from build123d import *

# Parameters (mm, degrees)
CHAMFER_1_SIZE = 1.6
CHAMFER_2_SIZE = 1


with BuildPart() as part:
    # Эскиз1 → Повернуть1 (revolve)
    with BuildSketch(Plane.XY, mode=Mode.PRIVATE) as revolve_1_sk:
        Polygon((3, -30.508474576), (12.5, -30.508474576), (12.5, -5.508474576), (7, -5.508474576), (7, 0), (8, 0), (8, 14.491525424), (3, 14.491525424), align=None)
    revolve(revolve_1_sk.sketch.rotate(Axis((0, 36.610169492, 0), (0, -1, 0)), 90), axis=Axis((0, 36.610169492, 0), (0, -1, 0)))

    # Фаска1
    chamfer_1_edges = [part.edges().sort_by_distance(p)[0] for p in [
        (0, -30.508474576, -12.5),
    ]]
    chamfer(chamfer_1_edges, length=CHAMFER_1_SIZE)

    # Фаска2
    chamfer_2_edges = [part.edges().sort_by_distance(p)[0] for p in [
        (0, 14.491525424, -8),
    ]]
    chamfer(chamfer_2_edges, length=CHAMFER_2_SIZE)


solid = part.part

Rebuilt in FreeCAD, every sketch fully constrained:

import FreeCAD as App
import Part
import Sketcher

V = App.Vector


def edges_at(feature, points):
    """Names of the edges that pass closest to the given points."""
    edges = feature.Shape.Edges
    near = lambda p: min(range(len(edges)), key=lambda i: edges[i].distToShape(Part.Vertex(*p))[0])
    return sorted({f"Edge{near(p) + 1}" for p in points})

doc = App.newDocument("Part")
params = doc.addObject("Spreadsheet::Sheet", "Params")
for row, (alias, value) in enumerate([
    ("sketch1_width", "1 mm"),
    ("sketch1_width2", "5 mm"),
    ("sketch1_height", "25 mm"),
    ("sketch1_height2", "45 mm"),
    ("sketch1_width3", "9.5 mm"),
    ("revolution_angle", "360 deg"),
    ("chamfer_size", "1.6 mm"),
    ("chamfer2_size", "1 mm"),
], start=1):
    params.set(f"A{row}", alias)
    params.set(f"B{row}", "=" + value)
    params.setAlias(f"B{row}", alias)

body = doc.addObject("PartDesign::Body", "Body")

# Sketch on XY plane
sketch1 = body.newObject("Sketcher::SketchObject", "Sketch")
sketch1.AttachmentSupport = (doc.getObject("XY_Plane"), [""])
sketch1.MapMode = "FlatFace"
sketch1.addGeometry([
    Part.LineSegment(V(3, -30.5, 0), V(12.5, -30.5, 0)),  # 0
    Part.LineSegment(V(12.5, -30.5, 0), V(12.5, -5.5, 0)),  # 1
    Part.LineSegment(V(12.5, -5.5, 0), V(7, -5.5, 0)),  # 2
    Part.LineSegment(V(7, -5.5, 0), V(7, 0, 0)),  # 3
    Part.LineSegment(V(7, 0, 0), V(8, 0, 0)),  # 4
    Part.LineSegment(V(8, 0, 0), V(8, 14.5, 0)),  # 5
    Part.LineSegment(V(8, 14.5, 0), V(3, 14.5, 0)),  # 6
    Part.LineSegment(V(3, 14.5, 0), V(3, -30.5, 0)),  # 7
], False)
sketch1.addConstraint([
    Sketcher.Constraint("Coincident", 0, 2, 1, 1),
    Sketcher.Constraint("Coincident", 1, 2, 2, 1),
    Sketcher.Constraint("Coincident", 2, 2, 3, 1),
    Sketcher.Constraint("Coincident", 3, 2, 4, 1),
    Sketcher.Constraint("Coincident", 4, 2, 5, 1),
    Sketcher.Constraint("Coincident", 5, 2, 6, 1),
    Sketcher.Constraint("Coincident", 6, 2, 7, 1),
    Sketcher.Constraint("Coincident", 7, 2, 0, 1),
    Sketcher.Constraint("Horizontal", 0),
    Sketcher.Constraint("Vertical", 1),
    Sketcher.Constraint("Horizontal", 2),
    Sketcher.Constraint("Vertical", 3),
    Sketcher.Constraint("Horizontal", 4),
    Sketcher.Constraint("Vertical", 5),
    Sketcher.Constraint("Horizontal", 6),
    Sketcher.Constraint("Vertical", 7),
    Sketcher.Constraint("PointOnObject", 3, 2, -1),
    Sketcher.Constraint("DistanceX", 4, 1, 4, 2, 1.0),
    Sketcher.Constraint("DistanceX", 6, 2, 6, 1, 5.0),
    Sketcher.Constraint("DistanceY", 1, 1, 1, 2, 25.0),
    Sketcher.Constraint("DistanceY", 7, 2, 7, 1, 45.0),
    Sketcher.Constraint("DistanceX", 0, 1, 0, 2, 9.5),
    Sketcher.Constraint("DistanceX", -1, 1, 2, 2, 7.0),
    Sketcher.Constraint("DistanceY", 3, 1, 3, 2, 5.508475),
])
sketch1.setExpression("Constraints[17]", "Params.sketch1_width")
sketch1.setExpression("Constraints[18]", "Params.sketch1_width2")
sketch1.setExpression("Constraints[19]", "Params.sketch1_height")
sketch1.setExpression("Constraints[20]", "Params.sketch1_height2")
sketch1.setExpression("Constraints[21]", "Params.sketch1_width3")
revolution = body.newObject("PartDesign::Revolution", "Revolution")
revolution.Profile = sketch1
revolution.ReferenceAxis = (sketch1, ["V_Axis"])
revolution.setExpression("Angle", "Params.revolution_angle")
doc.recompute()

chamfer = body.newObject("PartDesign::Chamfer", "Chamfer")
chamfer.Base = (revolution, edges_at(revolution, [(0, -30.508, -12.5)]))
chamfer.setExpression("Size", "Params.chamfer_size")
doc.recompute()

chamfer2 = body.newObject("PartDesign::Chamfer", "Chamfer001")
chamfer2.Base = (chamfer, edges_at(chamfer, [(0, 14.492, -8)]))
chamfer2.setExpression("Size", "Params.chamfer2_size")

doc.recompute()
